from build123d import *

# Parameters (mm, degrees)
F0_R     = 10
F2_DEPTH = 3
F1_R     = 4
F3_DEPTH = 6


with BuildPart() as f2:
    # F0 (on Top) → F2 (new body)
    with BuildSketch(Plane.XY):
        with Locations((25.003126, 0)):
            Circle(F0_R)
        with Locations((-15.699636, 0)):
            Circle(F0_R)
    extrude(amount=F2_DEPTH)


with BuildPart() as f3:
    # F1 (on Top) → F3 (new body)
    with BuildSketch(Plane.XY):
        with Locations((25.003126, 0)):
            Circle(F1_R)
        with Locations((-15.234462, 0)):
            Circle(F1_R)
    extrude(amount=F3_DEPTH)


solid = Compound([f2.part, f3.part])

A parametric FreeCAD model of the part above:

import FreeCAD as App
import Part
import Sketcher

doc = App.newDocument("Part")
params = doc.addObject("Spreadsheet::Sheet", "Params")
for row, (alias, value) in enumerate([
    ("sketch1_diameter", "20 mm"),
    ("pad1_length", "3 mm"),
    ("sketch2_diameter", "8 mm"),
    ("pad2_length", "6 mm"),
], start=1):
    params.set(f"A{row}", alias)
    params.set(f"B{row}", "=" + value)
    params.setAlias(f"B{row}", alias)

body = doc.addObject("PartDesign::Body", "Body")
body.AllowCompound = True

# Sketch on XY plane
sketch1 = body.newObject("Sketcher::SketchObject", "Sketch")
sketch1.AttachmentSupport = (doc.getObject("XY_Plane"), [""])
sketch1.MapMode = "FlatFace"
sketch1.addGeometry([
    Part.Circle(App.Vector(25.003126, 0, 0), App.Vector(0, 0, 1), 10),
    Part.Circle(App.Vector(-15.699636, 0, 0), App.Vector(0, 0, 1), 10),
], False)
sketch1.addConstraint([
    Sketcher.Constraint("Equal", 0, 1),
    Sketcher.Constraint("PointOnObject", 0, 3, -1),
    Sketcher.Constraint("PointOnObject", 1, 3, -1),
    Sketcher.Constraint("Diameter", 0, 20.0),
    Sketcher.Constraint("DistanceX", -1, 1, 0, 3, 25.003126),
    Sketcher.Constraint("DistanceX", 1, 3, -1, 1, 15.699636),
])
sketch1.setExpression("Constraints[3]", "Params.sketch1_diameter")
pad1 = body.newObject("PartDesign::Pad", "Pad")
pad1.Profile = sketch1
pad1.setExpression("Length", "Params.pad1_length")
body2 = doc.addObject("PartDesign::Body", "Body001")
body2.AllowCompound = True

# Sketch on XY plane
sketch2 = body2.newObject("Sketcher::SketchObject", "Sketch001")
sketch2.AttachmentSupport = (doc.getObject("XY_Plane001"), [""])
sketch2.MapMode = "FlatFace"
sketch2.addGeometry([
    Part.Circle(App.Vector(25.003126, 0, 0), App.Vector(0, 0, 1), 4),
    Part.Circle(App.Vector(-15.234462, 0, 0), App.Vector(0, 0, 1), 4),
], False)
sketch2.addConstraint([
    Sketcher.Constraint("Equal", 0, 1),
    Sketcher.Constraint("PointOnObject", 0, 3, -1),
    Sketcher.Constraint("PointOnObject", 1, 3, -1),
    Sketcher.Constraint("Diameter", 0, 8.0),
    Sketcher.Constraint("DistanceX", 1, 3, 0, 3, 40.237588),
    Sketcher.Constraint("DistanceX", -1, 1, 0, 3, 25.003126),
])
sketch2.setExpression("Constraints[3]", "Params.sketch2_diameter")
pad2 = body2.newObject("PartDesign::Pad", "Pad001")
pad2.Profile = sketch2
pad2.setExpression("Length", "Params.pad2_length")

doc.recompute()
